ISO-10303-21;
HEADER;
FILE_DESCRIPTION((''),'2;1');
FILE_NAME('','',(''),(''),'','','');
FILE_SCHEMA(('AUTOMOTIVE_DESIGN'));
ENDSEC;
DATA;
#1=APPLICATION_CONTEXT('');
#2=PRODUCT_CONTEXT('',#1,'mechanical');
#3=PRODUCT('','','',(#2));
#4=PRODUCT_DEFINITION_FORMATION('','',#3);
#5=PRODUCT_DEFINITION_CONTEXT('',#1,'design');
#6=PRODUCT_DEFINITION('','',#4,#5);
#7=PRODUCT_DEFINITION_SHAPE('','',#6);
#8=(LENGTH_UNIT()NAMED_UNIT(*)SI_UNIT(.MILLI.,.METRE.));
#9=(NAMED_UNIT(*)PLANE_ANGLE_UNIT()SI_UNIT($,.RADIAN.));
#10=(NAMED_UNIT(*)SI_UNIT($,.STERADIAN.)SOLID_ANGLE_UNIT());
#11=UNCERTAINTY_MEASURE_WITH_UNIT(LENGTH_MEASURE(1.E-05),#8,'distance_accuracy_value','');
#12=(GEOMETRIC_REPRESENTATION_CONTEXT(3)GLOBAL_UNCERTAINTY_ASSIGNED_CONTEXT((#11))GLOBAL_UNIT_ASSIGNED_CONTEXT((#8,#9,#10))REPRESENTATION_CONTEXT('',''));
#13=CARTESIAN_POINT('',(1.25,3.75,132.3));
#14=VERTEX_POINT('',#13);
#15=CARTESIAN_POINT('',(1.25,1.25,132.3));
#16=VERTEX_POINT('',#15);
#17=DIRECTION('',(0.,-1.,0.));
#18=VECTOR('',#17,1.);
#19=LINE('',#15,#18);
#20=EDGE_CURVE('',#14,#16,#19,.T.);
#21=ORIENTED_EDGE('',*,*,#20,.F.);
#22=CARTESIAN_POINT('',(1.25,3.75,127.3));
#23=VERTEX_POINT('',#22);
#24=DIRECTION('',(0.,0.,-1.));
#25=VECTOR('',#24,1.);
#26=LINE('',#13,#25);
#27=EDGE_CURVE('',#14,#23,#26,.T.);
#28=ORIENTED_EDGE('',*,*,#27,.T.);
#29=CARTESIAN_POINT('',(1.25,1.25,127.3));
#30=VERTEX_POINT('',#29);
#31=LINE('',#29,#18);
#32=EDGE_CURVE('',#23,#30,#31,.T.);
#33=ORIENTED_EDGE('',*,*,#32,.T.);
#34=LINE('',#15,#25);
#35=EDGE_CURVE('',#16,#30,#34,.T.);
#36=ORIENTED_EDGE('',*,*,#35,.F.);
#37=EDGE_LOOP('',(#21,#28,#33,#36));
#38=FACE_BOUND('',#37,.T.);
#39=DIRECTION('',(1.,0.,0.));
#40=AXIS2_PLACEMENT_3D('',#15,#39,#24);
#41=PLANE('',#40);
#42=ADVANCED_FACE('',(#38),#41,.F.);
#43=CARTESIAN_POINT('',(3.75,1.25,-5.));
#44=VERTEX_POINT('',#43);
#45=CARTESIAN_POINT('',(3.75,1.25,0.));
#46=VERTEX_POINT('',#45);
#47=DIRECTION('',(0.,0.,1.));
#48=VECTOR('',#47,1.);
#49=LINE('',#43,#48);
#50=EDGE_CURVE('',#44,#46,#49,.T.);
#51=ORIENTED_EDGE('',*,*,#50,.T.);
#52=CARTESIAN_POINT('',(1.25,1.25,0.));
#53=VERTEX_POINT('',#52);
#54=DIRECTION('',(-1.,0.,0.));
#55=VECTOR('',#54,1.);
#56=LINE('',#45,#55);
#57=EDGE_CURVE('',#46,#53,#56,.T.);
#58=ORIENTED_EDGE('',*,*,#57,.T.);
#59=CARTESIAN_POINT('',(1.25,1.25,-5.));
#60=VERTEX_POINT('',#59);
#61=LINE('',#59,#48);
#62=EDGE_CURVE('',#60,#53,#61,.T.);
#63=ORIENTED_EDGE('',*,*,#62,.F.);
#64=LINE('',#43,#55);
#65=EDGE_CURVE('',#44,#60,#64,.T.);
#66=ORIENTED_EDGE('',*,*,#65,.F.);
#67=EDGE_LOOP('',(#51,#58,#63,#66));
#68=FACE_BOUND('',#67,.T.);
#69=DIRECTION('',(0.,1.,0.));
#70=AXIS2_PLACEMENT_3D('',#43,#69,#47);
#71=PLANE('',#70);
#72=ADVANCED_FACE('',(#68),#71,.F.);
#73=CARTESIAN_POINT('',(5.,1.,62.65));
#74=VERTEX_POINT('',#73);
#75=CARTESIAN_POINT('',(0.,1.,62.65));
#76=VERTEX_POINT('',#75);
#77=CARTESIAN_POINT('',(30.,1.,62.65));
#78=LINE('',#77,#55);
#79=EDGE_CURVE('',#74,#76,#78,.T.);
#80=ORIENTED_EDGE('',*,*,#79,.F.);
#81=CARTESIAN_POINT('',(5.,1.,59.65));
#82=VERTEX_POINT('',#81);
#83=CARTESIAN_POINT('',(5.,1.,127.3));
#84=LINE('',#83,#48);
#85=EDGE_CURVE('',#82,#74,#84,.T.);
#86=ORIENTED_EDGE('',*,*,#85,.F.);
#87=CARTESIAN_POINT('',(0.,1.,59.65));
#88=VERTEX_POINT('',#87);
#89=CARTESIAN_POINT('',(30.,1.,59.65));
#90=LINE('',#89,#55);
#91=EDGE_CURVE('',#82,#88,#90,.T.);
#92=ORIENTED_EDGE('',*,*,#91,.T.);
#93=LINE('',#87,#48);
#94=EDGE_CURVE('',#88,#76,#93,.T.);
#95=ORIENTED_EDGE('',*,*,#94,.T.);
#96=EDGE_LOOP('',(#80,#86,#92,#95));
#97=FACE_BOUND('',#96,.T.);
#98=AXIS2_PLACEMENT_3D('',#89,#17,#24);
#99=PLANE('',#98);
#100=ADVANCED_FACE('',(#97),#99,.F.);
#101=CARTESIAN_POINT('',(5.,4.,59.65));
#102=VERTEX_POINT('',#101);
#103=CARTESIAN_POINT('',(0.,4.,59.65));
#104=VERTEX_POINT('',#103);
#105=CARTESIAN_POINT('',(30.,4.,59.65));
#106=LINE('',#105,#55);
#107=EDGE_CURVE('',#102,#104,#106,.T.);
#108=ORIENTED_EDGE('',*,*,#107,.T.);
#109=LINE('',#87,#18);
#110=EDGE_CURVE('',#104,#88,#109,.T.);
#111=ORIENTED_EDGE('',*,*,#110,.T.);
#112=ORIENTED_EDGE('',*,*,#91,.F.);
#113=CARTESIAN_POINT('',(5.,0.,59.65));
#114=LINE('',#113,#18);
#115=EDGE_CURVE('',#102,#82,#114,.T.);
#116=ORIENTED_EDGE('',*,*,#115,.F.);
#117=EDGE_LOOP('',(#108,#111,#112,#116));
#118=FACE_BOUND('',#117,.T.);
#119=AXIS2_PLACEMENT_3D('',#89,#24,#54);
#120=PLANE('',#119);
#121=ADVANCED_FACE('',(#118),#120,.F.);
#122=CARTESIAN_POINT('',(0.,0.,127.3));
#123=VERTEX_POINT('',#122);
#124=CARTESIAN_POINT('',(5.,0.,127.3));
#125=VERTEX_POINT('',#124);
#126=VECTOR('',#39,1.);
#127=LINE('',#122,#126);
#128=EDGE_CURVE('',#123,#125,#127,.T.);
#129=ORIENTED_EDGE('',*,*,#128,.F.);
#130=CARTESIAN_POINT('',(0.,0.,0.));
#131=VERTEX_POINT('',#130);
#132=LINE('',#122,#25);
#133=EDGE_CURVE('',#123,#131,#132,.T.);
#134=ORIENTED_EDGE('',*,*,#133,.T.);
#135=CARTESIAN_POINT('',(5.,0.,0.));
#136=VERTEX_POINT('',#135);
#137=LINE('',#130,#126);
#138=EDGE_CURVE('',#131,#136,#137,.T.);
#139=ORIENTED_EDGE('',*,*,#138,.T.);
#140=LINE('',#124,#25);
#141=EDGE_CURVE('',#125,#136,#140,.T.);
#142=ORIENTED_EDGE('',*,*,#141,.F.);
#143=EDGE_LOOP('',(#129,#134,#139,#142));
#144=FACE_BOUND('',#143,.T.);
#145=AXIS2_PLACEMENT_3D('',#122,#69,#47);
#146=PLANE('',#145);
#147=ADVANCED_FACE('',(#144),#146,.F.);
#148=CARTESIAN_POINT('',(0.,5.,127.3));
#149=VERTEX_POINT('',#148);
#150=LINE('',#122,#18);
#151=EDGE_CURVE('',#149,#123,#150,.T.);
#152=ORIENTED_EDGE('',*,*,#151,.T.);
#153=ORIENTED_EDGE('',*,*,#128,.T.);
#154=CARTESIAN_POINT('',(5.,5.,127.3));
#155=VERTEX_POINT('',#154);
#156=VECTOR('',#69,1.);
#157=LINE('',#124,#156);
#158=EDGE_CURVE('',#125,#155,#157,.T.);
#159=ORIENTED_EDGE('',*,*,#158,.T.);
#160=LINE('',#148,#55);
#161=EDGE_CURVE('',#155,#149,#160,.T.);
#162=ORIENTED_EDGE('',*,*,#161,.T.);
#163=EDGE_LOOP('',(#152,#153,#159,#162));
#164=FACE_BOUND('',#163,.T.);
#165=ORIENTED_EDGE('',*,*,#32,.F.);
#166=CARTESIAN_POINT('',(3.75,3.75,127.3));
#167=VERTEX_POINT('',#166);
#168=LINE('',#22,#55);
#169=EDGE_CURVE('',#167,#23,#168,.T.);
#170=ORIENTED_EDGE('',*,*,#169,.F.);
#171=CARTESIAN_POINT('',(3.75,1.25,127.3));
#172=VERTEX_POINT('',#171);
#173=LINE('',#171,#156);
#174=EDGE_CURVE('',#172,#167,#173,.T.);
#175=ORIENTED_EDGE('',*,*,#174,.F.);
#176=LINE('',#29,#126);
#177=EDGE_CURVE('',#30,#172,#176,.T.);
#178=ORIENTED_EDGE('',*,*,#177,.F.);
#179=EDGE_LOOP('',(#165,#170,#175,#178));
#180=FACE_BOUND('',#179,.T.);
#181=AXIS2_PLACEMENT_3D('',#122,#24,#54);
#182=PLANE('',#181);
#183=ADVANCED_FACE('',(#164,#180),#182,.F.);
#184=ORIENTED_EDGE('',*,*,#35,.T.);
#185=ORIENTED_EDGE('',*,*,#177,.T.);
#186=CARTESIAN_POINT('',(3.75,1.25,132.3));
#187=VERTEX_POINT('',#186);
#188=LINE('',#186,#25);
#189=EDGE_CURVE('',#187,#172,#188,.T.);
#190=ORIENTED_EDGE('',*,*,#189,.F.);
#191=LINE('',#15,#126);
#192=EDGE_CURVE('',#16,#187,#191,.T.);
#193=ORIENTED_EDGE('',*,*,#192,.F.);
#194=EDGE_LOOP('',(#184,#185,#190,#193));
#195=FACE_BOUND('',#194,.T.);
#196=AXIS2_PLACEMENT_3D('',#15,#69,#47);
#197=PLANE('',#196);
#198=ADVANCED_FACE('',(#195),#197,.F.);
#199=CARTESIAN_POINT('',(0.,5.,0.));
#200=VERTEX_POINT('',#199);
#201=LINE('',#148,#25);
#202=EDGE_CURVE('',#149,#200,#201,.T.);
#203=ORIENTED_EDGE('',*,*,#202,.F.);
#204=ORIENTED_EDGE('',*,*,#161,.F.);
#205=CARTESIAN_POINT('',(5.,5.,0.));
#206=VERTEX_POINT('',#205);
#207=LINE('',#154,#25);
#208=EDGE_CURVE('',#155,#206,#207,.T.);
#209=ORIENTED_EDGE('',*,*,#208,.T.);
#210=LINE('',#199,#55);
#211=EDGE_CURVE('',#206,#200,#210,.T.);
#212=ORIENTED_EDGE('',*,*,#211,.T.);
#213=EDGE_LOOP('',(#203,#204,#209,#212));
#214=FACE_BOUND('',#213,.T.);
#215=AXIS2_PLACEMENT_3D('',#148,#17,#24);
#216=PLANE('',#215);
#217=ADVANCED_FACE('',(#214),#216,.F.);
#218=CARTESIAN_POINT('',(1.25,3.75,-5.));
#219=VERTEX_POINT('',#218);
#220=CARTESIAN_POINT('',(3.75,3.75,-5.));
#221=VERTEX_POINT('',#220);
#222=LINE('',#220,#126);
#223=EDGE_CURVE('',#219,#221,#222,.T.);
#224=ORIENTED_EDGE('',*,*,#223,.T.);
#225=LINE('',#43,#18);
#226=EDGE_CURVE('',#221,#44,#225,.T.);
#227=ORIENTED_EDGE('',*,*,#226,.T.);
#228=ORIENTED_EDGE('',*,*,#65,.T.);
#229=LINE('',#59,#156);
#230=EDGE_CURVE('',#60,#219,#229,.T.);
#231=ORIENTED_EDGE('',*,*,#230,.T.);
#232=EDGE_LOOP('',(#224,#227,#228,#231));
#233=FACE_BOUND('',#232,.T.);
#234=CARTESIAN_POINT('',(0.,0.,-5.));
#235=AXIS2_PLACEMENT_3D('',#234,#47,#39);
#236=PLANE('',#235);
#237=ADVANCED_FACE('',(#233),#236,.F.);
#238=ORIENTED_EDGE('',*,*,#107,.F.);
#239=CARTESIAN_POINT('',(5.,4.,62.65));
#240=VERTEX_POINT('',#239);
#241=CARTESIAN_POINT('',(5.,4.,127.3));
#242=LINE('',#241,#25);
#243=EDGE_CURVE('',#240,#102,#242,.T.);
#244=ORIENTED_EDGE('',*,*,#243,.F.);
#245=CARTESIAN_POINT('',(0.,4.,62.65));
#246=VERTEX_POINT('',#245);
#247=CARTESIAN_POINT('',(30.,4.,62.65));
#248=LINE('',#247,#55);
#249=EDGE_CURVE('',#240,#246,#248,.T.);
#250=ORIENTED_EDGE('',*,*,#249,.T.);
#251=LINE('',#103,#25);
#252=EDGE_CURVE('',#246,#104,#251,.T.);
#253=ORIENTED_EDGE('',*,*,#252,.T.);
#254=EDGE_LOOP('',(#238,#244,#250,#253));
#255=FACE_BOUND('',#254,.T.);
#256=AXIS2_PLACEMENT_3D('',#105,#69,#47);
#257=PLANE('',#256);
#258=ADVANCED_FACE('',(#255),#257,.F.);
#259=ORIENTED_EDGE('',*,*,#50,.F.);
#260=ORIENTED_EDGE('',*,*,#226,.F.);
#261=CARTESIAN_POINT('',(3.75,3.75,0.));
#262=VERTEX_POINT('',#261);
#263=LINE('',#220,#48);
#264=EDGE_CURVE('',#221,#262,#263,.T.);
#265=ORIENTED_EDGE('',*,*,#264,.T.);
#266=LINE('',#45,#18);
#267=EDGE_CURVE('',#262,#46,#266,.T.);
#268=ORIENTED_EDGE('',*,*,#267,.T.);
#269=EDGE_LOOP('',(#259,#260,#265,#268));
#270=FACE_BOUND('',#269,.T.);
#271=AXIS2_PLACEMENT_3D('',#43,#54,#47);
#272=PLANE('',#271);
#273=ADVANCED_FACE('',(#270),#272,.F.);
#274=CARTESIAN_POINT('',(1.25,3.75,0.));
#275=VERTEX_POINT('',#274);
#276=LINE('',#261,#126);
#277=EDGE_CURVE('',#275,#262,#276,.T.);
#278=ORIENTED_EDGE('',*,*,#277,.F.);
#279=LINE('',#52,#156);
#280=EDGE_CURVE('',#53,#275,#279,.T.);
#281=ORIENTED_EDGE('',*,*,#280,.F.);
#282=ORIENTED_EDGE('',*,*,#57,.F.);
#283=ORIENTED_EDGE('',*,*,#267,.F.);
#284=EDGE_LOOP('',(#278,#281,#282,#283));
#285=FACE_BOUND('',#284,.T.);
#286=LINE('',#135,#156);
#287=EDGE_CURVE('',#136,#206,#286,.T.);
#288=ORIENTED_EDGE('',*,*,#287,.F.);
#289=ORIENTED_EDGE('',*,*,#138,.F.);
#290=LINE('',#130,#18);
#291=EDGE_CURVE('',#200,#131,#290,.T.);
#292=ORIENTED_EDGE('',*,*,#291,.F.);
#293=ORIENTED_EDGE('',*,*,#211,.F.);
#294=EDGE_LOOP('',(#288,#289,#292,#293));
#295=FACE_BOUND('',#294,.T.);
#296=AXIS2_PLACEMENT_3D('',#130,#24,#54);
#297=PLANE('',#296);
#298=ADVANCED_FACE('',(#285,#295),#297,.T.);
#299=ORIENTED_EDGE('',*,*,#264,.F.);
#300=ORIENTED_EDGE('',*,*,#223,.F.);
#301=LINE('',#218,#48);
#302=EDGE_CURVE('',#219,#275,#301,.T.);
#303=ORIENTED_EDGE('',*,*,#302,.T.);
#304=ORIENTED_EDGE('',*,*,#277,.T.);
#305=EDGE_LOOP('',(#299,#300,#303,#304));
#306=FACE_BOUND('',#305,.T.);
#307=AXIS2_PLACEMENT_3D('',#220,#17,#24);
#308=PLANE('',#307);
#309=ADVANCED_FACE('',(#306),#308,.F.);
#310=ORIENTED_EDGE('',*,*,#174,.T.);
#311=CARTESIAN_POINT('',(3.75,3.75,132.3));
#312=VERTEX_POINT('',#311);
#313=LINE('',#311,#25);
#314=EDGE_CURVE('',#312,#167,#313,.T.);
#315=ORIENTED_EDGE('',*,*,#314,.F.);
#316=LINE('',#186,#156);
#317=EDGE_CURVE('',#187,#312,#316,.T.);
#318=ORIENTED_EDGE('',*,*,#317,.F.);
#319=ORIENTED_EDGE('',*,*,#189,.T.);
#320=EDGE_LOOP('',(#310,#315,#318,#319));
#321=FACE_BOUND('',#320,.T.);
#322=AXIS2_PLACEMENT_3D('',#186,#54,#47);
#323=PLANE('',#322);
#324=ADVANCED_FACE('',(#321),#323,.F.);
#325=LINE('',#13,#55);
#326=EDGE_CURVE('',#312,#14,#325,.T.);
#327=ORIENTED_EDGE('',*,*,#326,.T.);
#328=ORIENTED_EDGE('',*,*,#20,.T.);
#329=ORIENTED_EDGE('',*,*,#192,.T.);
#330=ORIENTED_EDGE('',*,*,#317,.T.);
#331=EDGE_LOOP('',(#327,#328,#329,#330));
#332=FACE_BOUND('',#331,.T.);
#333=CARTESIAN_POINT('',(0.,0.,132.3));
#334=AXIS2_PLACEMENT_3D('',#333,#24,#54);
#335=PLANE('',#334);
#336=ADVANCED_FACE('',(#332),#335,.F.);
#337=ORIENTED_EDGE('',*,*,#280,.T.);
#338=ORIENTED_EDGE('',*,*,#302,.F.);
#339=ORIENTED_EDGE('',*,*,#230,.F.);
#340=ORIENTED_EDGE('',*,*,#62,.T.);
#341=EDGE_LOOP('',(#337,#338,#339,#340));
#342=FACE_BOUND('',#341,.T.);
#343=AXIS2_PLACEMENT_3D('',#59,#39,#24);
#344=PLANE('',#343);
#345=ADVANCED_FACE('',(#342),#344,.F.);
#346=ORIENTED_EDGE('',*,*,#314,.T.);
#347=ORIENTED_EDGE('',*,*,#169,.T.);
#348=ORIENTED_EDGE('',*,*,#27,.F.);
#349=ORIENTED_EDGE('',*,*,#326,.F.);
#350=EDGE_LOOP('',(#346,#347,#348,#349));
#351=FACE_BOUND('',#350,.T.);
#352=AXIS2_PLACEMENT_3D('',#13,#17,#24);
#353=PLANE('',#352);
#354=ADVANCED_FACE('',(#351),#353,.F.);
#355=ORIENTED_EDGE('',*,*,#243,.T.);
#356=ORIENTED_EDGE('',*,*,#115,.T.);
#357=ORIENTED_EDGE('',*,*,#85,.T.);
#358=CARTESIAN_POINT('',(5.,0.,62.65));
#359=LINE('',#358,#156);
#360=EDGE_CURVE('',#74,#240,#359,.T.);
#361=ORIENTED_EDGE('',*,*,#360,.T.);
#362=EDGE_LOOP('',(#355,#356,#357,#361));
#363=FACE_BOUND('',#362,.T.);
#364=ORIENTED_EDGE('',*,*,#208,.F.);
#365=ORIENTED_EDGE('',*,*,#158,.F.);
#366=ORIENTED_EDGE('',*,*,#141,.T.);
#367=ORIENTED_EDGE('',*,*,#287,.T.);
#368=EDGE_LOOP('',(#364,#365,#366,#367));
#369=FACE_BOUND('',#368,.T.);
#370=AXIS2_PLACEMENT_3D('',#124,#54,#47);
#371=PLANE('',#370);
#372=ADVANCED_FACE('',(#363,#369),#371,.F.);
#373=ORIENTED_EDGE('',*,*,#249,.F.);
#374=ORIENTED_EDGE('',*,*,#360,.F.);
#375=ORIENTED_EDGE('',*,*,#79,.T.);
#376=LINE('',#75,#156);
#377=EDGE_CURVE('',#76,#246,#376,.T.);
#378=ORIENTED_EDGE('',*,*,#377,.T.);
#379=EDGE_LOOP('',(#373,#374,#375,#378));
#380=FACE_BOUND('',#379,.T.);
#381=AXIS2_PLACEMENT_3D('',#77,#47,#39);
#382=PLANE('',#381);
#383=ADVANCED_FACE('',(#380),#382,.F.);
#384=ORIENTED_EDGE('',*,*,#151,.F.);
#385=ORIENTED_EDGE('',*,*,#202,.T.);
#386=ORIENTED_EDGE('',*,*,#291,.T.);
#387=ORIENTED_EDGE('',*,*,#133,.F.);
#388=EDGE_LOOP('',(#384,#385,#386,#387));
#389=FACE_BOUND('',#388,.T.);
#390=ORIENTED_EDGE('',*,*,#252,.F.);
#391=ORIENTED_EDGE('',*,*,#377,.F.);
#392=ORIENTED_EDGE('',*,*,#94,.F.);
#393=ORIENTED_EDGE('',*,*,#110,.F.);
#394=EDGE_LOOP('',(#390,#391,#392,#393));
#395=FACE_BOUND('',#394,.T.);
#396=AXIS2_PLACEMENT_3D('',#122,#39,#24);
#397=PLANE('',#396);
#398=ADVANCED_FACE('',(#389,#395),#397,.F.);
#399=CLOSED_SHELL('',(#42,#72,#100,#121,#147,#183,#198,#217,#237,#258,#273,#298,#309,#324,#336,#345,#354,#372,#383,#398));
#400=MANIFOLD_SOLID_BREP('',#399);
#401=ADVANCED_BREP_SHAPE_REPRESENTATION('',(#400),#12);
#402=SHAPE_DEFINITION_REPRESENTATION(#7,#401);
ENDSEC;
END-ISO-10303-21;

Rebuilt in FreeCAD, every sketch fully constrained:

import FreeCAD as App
import Part
import Sketcher

V = App.Vector
Q = App.Units.Quantity


def add_polygon(sketch, points):
    """Adds a closed chain of lines whose ends are joined by coincident constraints."""
    first, n = sketch.GeometryCount, len(points)
    for a, b in zip(points, points[1:] + points[:1]):
        sketch.addGeometry(Part.LineSegment(App.Vector(*a, 0), App.Vector(*b, 0)), False)
    for i in range(n):
        sketch.addConstraint(Sketcher.Constraint("Coincident", first + i, 2, first + (i + 1) % n, 1))

doc = App.newDocument("Part")
params = doc.addObject("Spreadsheet::Sheet", "Params")
for row, (alias, value) in enumerate([
    ("sketch1_width", "5 mm"),
    ("pad1_length", "127.3 mm"),
    ("sketch2_width", "2.5 mm"),
    ("pad2_length", "5 mm"),
    ("sketch3_width", "2.5 mm"),
    ("pad3_length", "5 mm"),
    ("sketch4_width", "3 mm"),
    ("pocket1_length", "30 mm"),
], start=1):
    params.set(f"A{row}", alias)
    params.set(f"B{row}", "=" + value)
    params.setAlias(f"B{row}", alias)

body = doc.addObject("PartDesign::Body", "Body")

# Sketch on XY plane
sketch1 = doc.addObject("Sketcher::SketchObject", "Sketch")
body.addObject(sketch1)
sketch1.AttachmentSupport = (doc.XY_Plane, [""])
sketch1.MapMode = "FlatFace"
add_polygon(sketch1, [(0, 5), (0, 0), (5, 0), (5, 5)])  # lines 0-3
sketch1.addConstraint(Sketcher.Constraint("Vertical", 0))
sketch1.addConstraint(Sketcher.Constraint("Horizontal", 1))
sketch1.addConstraint(Sketcher.Constraint("Vertical", 2))
sketch1.addConstraint(Sketcher.Constraint("Horizontal", 3))
sketch1.addConstraint(Sketcher.Constraint("Coincident", 0, 2, -1, 1))
sketch1.addConstraint(Sketcher.Constraint("Equal", 3, 0))
sketch1.addConstraint(Sketcher.Constraint("DistanceX", 1, 1, 1, 2, Q("5 mm")))
sketch1.setExpression("Constraints[10]", "Params.sketch1_width")
pad1 = doc.addObject("PartDesign::Pad", "Pad")
body.addObject(pad1)
pad1.Profile = sketch1
pad1.setExpression("Length", "Params.pad1_length")

# Sketch on XY plane
sketch2 = doc.addObject("Sketcher::SketchObject", "Sketch001")
body.addObject(sketch2)
sketch2.AttachmentSupport = (doc.XY_Plane, [""])
sketch2.MapMode = "FlatFace"
add_polygon(sketch2, [(3.75, 3.75), (3.75, 1.25), (1.25, 1.25), (1.25, 3.75)])  # lines 0-3
sketch2.addConstraint(Sketcher.Constraint("Vertical", 0))
sketch2.addConstraint(Sketcher.Constraint("Horizontal", 1))
sketch2.addConstraint(Sketcher.Constraint("Vertical", 2))
sketch2.addConstraint(Sketcher.Constraint("Horizontal", 3))
sketch2.addConstraint(Sketcher.Constraint("Equal", 3, 0))
sketch2.addConstraint(Sketcher.Constraint("DistanceX", 1, 2, 1, 1, Q("2.5 mm")))
sketch2.addConstraint(Sketcher.Constraint("DistanceX", -1, 1, 0, 2, Q("3.75 mm")))
sketch2.addConstraint(Sketcher.Constraint("DistanceY", -1, 1, 0, 2, Q("1.25 mm")))
sketch2.setExpression("Constraints[9]", "Params.sketch2_width")
pad2 = doc.addObject("PartDesign::Pad", "Pad001")
body.addObject(pad2)
pad2.Profile = sketch2
pad2.setExpression("Length", "Params.pad2_length")
pad2.Reversed = True

# Sketch on XY plane
sketch3 = doc.addObject("Sketcher::SketchObject", "Sketch002")
body.addObject(sketch3)
sketch3.AttachmentSupport = (doc.XY_Plane, [""])
sketch3.MapMode = "FlatFace"
sketch3.AttachmentOffset = App.Placement(V(0, 0, 127.3), App.Rotation())
add_polygon(sketch3, [(1.25, 3.75), (1.25, 1.25), (3.75, 1.25), (3.75, 3.75)])  # lines 0-3
sketch3.addConstraint(Sketcher.Constraint("Vertical", 0))
sketch3.addConstraint(Sketcher.Constraint("Horizontal", 1))
sketch3.addConstraint(Sketcher.Constraint("Vertical", 2))
sketch3.addConstraint(Sketcher.Constraint("Horizontal", 3))
sketch3.addConstraint(Sketcher.Constraint("Equal", 3, 0))
sketch3.addConstraint(Sketcher.Constraint("DistanceX", 1, 1, 1, 2, Q("2.5 mm")))
sketch3.addConstraint(Sketcher.Constraint("DistanceX", -1, 1, 0, 2, Q("1.25 mm")))
sketch3.addConstraint(Sketcher.Constraint("DistanceY", -1, 1, 0, 2, Q("1.25 mm")))
sketch3.setExpression("Constraints[9]", "Params.sketch3_width")
pad3 = doc.addObject("PartDesign::Pad", "Pad002")
body.addObject(pad3)
pad3.Profile = sketch3
pad3.setExpression("Length", "Params.pad3_length")

# Sketch on YZ plane
sketch4 = doc.addObject("Sketcher::SketchObject", "Sketch003")
body.addObject(sketch4)
sketch4.AttachmentSupport = (doc.YZ_Plane, [""])
sketch4.MapMode = "FlatFace"
add_polygon(sketch4, [(4, 59.65), (1, 59.65), (1, 62.65), (4, 62.65)])  # lines 0-3
sketch4.addConstraint(Sketcher.Constraint("Horizontal", 0))
sketch4.addConstraint(Sketcher.Constraint("Vertical", 1))
sketch4.addConstraint(Sketcher.Constraint("Horizontal", 2))
sketch4.addConstraint(Sketcher.Constraint("Vertical", 3))
sketch4.addConstraint(Sketcher.Constraint("Equal", 2, 1))
sketch4.addConstraint(Sketcher.Constraint("DistanceX", 0, 2, 0, 1, Q("3 mm")))
sketch4.addConstraint(Sketcher.Constraint("DistanceX", -1, 1, 0, 2, Q("1 mm")))
sketch4.addConstraint(Sketcher.Constraint("DistanceY", -1, 1, 0, 2, Q("59.65 mm")))
sketch4.setExpression("Constraints[9]", "Params.sketch4_width")
pocket1 = doc.addObject("PartDesign::Pocket", "Pocket")
body.addObject(pocket1)
pocket1.Profile = sketch4
pocket1.setExpression("Length", "Params.pocket1_length")
pocket1.Reversed = True

doc.recompute()
